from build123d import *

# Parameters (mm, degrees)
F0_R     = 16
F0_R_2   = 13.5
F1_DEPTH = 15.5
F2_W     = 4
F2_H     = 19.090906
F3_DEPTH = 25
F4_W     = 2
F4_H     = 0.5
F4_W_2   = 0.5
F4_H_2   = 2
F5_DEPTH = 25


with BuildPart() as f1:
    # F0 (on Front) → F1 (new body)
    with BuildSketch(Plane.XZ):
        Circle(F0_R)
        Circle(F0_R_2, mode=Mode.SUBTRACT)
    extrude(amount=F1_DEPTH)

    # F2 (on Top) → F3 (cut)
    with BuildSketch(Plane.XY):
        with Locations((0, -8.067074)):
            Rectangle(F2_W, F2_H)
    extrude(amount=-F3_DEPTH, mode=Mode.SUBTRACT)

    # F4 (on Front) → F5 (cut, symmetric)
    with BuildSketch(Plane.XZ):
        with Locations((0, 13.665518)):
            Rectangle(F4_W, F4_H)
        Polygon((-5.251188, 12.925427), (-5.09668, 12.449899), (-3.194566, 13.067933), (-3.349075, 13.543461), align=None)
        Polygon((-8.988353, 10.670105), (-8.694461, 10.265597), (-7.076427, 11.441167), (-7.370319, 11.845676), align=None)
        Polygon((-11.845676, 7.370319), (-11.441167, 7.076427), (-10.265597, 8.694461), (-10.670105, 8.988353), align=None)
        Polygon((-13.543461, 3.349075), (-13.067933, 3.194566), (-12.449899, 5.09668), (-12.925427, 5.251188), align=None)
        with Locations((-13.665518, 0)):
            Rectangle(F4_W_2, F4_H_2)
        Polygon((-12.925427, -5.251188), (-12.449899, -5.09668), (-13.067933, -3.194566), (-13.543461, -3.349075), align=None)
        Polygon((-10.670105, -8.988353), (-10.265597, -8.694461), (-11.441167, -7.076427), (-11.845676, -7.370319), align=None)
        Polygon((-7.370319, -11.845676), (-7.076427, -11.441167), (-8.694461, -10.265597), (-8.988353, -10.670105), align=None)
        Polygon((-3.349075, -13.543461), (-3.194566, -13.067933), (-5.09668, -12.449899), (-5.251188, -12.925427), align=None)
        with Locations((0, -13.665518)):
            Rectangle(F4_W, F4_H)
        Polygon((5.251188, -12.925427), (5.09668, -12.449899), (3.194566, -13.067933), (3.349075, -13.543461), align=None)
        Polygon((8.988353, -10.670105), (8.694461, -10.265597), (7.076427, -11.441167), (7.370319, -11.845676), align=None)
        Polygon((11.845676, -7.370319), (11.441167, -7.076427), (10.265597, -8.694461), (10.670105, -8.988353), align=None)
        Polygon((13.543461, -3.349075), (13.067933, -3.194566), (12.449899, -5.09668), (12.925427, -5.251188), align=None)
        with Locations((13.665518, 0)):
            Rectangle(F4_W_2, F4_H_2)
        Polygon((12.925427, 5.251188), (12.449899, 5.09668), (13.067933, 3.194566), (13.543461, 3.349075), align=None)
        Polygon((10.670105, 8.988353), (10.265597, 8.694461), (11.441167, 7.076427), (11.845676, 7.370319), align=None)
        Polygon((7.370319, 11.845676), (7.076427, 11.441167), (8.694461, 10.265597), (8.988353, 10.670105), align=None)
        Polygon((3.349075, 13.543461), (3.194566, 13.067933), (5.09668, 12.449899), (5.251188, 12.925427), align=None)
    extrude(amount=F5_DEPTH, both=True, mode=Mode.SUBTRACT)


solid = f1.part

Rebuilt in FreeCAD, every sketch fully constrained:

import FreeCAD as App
import Part
import Sketcher

V = App.Vector
Q = App.Units.Quantity


def add_polygon(sketch, points):
    """Adds a closed chain of lines whose ends are joined by coincident constraints."""
    first, n = sketch.GeometryCount, len(points)
    for a, b in zip(points, points[1:] + points[:1]):
        sketch.addGeometry(Part.LineSegment(App.Vector(*a, 0), App.Vector(*b, 0)), False)
    for i in range(n):
        sketch.addConstraint(Sketcher.Constraint("Coincident", first + i, 2, first + (i + 1) % n, 1))

doc = App.newDocument("Part")
body = doc.addObject("PartDesign::Body", "Body")

sketch1 = body.newObject("Sketcher::SketchObject", "Sketch")
sketch1.AttachmentSupport = (doc.getObject("XZ_Plane"), [""])
sketch1.MapMode = "FlatFace"
sketch1.addGeometry(Part.Circle(V(0, 0, 0), V(0, 0, 1), 16), False)
sketch1.addGeometry(Part.Circle(V(0, 0, 0), V(0, 0, 1), 14), False)
sketch1.addConstraint(Sketcher.Constraint("Coincident", 0, 3, -1, 1))
sketch1.addConstraint(Sketcher.Constraint("Coincident", 1, 3, -1, 1))
sketch1.addConstraint(Sketcher.Constraint("Diameter", 0, 32.0))
sketch1.addConstraint(Sketcher.Constraint("Diameter", 1, 27.0))
pad1 = body.newObject("PartDesign::Pad", "Pad")
pad1.Profile = sketch1
pad1.Length = 15.5

sketch2 = body.newObject("Sketcher::SketchObject", "Sketch001")
sketch2.AttachmentSupport = (doc.getObject("XY_Plane"), [""])
sketch2.MapMode = "FlatFace"
add_polygon(sketch2, [(-2, 1.5), (-2, -17.6), (2, -17.6), (2, 1.5)])
sketch2.addConstraint(Sketcher.Constraint("Vertical", 0))
sketch2.addConstraint(Sketcher.Constraint("Horizontal", 1))
sketch2.addConstraint(Sketcher.Constraint("Vertical", 2))
sketch2.addConstraint(Sketcher.Constraint("Horizontal", 3))
sketch2.addConstraint(Sketcher.Constraint("DistanceX", 1, 1, 1, 2, 4.0))
sketch2.addConstraint(Sketcher.Constraint("DistanceX", 0, 2, -1, 1, 2.0))
sketch2.addConstraint(Sketcher.Constraint("DistanceY", 0, 2, 0, 1, 19.090906))
sketch2.addConstraint(Sketcher.Constraint("DistanceY", -1, 1, 2, 2, 1.478379))
pocket1 = body.newObject("PartDesign::Pocket", "Pocket")
pocket1.Profile = sketch2
pocket1.Length = 25

sketch3 = body.newObject("Sketcher::SketchObject", "Sketch002")
sketch3.AttachmentSupport = (doc.getObject("XZ_Plane"), [""])
sketch3.MapMode = "FlatFace"
add_polygon(sketch3, [(-1, 13.92), (-1, 13.42), (1, 13.42), (1, 13.92)])
add_polygon(sketch3, [(-5.25, 12.93), (-5.1, 12.45), (-3.19, 13.07), (-3.35, 13.54)])
add_polygon(sketch3, [(-8.99, 10.67), (-8.69, 10.27), (-7.08, 11.44), (-7.37, 11.85)])
add_polygon(sketch3, [(-11.85, 7.37), (-11.44, 7.08), (-10.27, 8.69), (-10.67, 8.99)])
add_polygon(sketch3, [(-13.54, 3.35), (-13.07, 3.19), (-12.45, 5.1), (-12.93, 5.25)])
add_polygon(sketch3, [(-13.92, 1), (-13.92, -1), (-13.42, -1), (-13.42, 1)])
add_polygon(sketch3, [(-12.93, -5.25), (-12.45, -5.1), (-13.07, -3.19), (-13.54, -3.35)])
add_polygon(sketch3, [(-10.67, -8.99), (-10.27, -8.69), (-11.44, -7.08), (-11.85, -7.37)])
add_polygon(sketch3, [(-7.37, -11.85), (-7.08, -11.44), (-8.69, -10.27), (-8.99, -10.67)])
add_polygon(sketch3, [(-3.35, -13.54), (-3.19, -13.07), (-5.1, -12.45), (-5.25, -12.93)])
add_polygon(sketch3, [(-1, -13.42), (-1, -13.92), (1, -13.92), (1, -13.42)])
add_polygon(sketch3, [(5.25, -12.93), (5.1, -12.45), (3.19, -13.07), (3.35, -13.54)])
add_polygon(sketch3, [(8.99, -10.67), (8.69, -10.27), (7.08, -11.44), (7.37, -11.85)])
add_polygon(sketch3, [(11.85, -7.37), (11.44, -7.08), (10.27, -8.69), (10.67, -8.99)])
add_polygon(sketch3, [(13.54, -3.35), (13.07, -3.19), (12.45, -5.1), (12.93, -5.25)])
add_polygon(sketch3, [(13.42, 1), (13.42, -1), (13.92, -1), (13.92, 1)])
add_polygon(sketch3, [(12.93, 5.25), (12.45, 5.1), (13.07, 3.19), (13.54, 3.35)])
add_polygon(sketch3, [(10.67, 8.99), (10.27, 8.69), (11.44, 7.08), (11.85, 7.37)])
add_polygon(sketch3, [(7.37, 11.85), (7.08, 11.44), (8.69, 10.27), (8.99, 10.67)])
add_polygon(sketch3, [(3.35, 13.54), (3.19, 13.07), (5.1, 12.45), (5.25, 12.93)])
sketch3.addConstraint(Sketcher.Constraint("Vertical", 0))
sketch3.addConstraint(Sketcher.Constraint("Horizontal", 1))
sketch3.addConstraint(Sketcher.Constraint("Vertical", 2))
sketch3.addConstraint(Sketcher.Constraint("Horizontal", 3))
sketch3.addConstraint(Sketcher.Constraint("Vertical", 20))
sketch3.addConstraint(Sketcher.Constraint("Horizontal", 21))
sketch3.addConstraint(Sketcher.Constraint("Vertical", 22))
sketch3.addConstraint(Sketcher.Constraint("Horizontal", 23))
sketch3.addConstraint(Sketcher.Constraint("Vertical", 40))
sketch3.addConstraint(Sketcher.Constraint("Horizontal", 41))
sketch3.addConstraint(Sketcher.Constraint("Vertical", 42))
sketch3.addConstraint(Sketcher.Constraint("Horizontal", 43))
sketch3.addConstraint(Sketcher.Constraint("Vertical", 60))
sketch3.addConstraint(Sketcher.Constraint("Horizontal", 61))
sketch3.addConstraint(Sketcher.Constraint("Vertical", 62))
sketch3.addConstraint(Sketcher.Constraint("Horizontal", 63))
sketch3.addConstraint(Sketcher.Constraint("Symmetric", 2, 2, 40, 2, -1, 1))
sketch3.addConstraint(Sketcher.Constraint("Symmetric", 0, 2, 42, 2, -1, 1))
sketch3.addConstraint(Sketcher.Constraint("Symmetric", 4, 2, 44, 2, -1, 1))
sketch3.addConstraint(Sketcher.Constraint("Symmetric", 5, 2, 45, 2, -1, 1))
sketch3.addConstraint(Sketcher.Constraint("Symmetric", 6, 2, 46, 2, -1, 1))
sketch3.addConstraint(Sketcher.Constraint("Symmetric", 7, 2, 47, 2, -1, 1))
sketch3.addConstraint(Sketcher.Constraint("Symmetric", 8, 2, 48, 2, -1, 1))
sketch3.addConstraint(Sketcher.Constraint("Symmetric", 9, 2, 49, 2, -1, 1))
sketch3.addConstraint(Sketcher.Constraint("Symmetric", 10, 2, 50, 2, -1, 1))
sketch3.addConstraint(Sketcher.Constraint("Symmetric", 11, 2, 51, 2, -1, 1))
sketch3.addConstraint(Sketcher.Constraint("Symmetric", 12, 2, 52, 2, -1, 1))
sketch3.addConstraint(Sketcher.Constraint("Symmetric", 13, 2, 53, 2, -1, 1))
sketch3.addConstraint(Sketcher.Constraint("Symmetric", 14, 2, 54, 2, -1, 1))
sketch3.addConstraint(Sketcher.Constraint("Symmetric", 15, 2, 55, 2, -1, 1))
sketch3.addConstraint(Sketcher.Constraint("Symmetric", 16, 2, 56, 2, -1, 1))
sketch3.addConstraint(Sketcher.Constraint("Symmetric", 17, 2, 57, 2, -1, 1))
sketch3.addConstraint(Sketcher.Constraint("Symmetric", 18, 2, 58, 2, -1, 1))
sketch3.addConstraint(Sketcher.Constraint("Symmetric", 19, 2, 59, 2, -1, 1))
sketch3.addConstraint(Sketcher.Constraint("Symmetric", 22, 2, 60, 2, -1, 1))
sketch3.addConstraint(Sketcher.Constraint("Symmetric", 20, 2, 62, 2, -1, 1))
sketch3.addConstraint(Sketcher.Constraint("Symmetric", 24, 2, 64, 2, -1, 1))
sketch3.addConstraint(Sketcher.Constraint("Symmetric", 25, 2, 65, 2, -1, 1))
sketch3.addConstraint(Sketcher.Constraint("Symmetric", 26, 2, 66, 2, -1, 1))
sketch3.addConstraint(Sketcher.Constraint("Symmetric", 27, 2, 67, 2, -1, 1))
sketch3.addConstraint(Sketcher.Constraint("Symmetric", 28, 2, 68, 2, -1, 1))
sketch3.addConstraint(Sketcher.Constraint("Symmetric", 29, 2, 69, 2, -1, 1))
sketch3.addConstraint(Sketcher.Constraint("Symmetric", 30, 2, 70, 2, -1, 1))
sketch3.addConstraint(Sketcher.Constraint("Symmetric", 31, 2, 71, 2, -1, 1))
sketch3.addConstraint(Sketcher.Constraint("Symmetric", 32, 2, 72, 2, -1, 1))
sketch3.addConstraint(Sketcher.Constraint("Symmetric", 33, 2, 73, 2, -1, 1))
sketch3.addConstraint(Sketcher.Constraint("Symmetric", 34, 2, 74, 2, -1, 1))
sketch3.addConstraint(Sketcher.Constraint("Symmetric", 35, 2, 75, 2, -1, 1))
sketch3.addConstraint(Sketcher.Constraint("Symmetric", 36, 2, 76, 2, -1, 1))
sketch3.addConstraint(Sketcher.Constraint("Symmetric", 37, 2, 77, 2, -1, 1))
sketch3.addConstraint(Sketcher.Constraint("Symmetric", 38, 2, 78, 2, -1, 1))
sketch3.addConstraint(Sketcher.Constraint("Symmetric", 39, 2, 79, 2, -1, 1))
sketch3.addConstraint(Sketcher.Constraint("Symmetric", 37, 2, 44, 2, -2))
sketch3.addConstraint(Sketcher.Constraint("Symmetric", 36, 2, 45, 2, -2))
sketch3.addConstraint(Sketcher.Constraint("Symmetric", 39, 2, 46, 2, -2))
sketch3.addConstraint(Sketcher.Constraint("Symmetric", 38, 2, 47, 2, -2))
sketch3.addConstraint(Sketcher.Constraint("Symmetric", 33, 2, 48, 2, -2))
sketch3.addConstraint(Sketcher.Constraint("Symmetric", 32, 2, 49, 2, -2))
sketch3.addConstraint(Sketcher.Constraint("Symmetric", 35, 2, 50, 2, -2))
sketch3.addConstraint(Sketcher.Constraint("Symmetric", 34, 2, 51, 2, -2))
sketch3.addConstraint(Sketcher.Constraint("Symmetric", 29, 2, 52, 2, -2))
sketch3.addConstraint(Sketcher.Constraint("Symmetric", 28, 2, 53, 2, -2))
sketch3.addConstraint(Sketcher.Constraint("Symmetric", 31, 2, 54, 2, -2))
sketch3.addConstraint(Sketcher.Constraint("Symmetric", 30, 2, 55, 2, -2))
sketch3.addConstraint(Sketcher.Constraint("Symmetric", 25, 2, 56, 2, -2))
sketch3.addConstraint(Sketcher.Constraint("Symmetric", 24, 2, 57, 2, -2))
sketch3.addConstraint(Sketcher.Constraint("Symmetric", 27, 2, 58, 2, -2))
sketch3.addConstraint(Sketcher.Constraint("Symmetric", 26, 2, 59, 2, -2))
sketch3.addConstraint(Sketcher.Constraint("Perpendicular", 4, 5))
sketch3.addConstraint(Sketcher.Constraint("Perpendicular", 5, 6))
sketch3.addConstraint(Sketcher.Constraint("Perpendicular", 6, 7))
sketch3.addConstraint(Sketcher.Constraint("Perpendicular", 8, 9))
sketch3.addConstraint(Sketcher.Constraint("Perpendicular", 9, 10))
sketch3.addConstraint(Sketcher.Constraint("Perpendicular", 10, 11))
sketch3.addConstraint(Sketcher.Constraint("Perpendicular", 12, 13))
sketch3.addConstraint(Sketcher.Constraint("Perpendicular", 13, 14))
sketch3.addConstraint(Sketcher.Constraint("Perpendicular", 14, 15))
sketch3.addConstraint(Sketcher.Constraint("Perpendicular", 16, 17))
sketch3.addConstraint(Sketcher.Constraint("Perpendicular", 17, 18))
sketch3.addConstraint(Sketcher.Constraint("Perpendicular", 18, 19))
sketch3.addConstraint(Sketcher.Constraint("Parallel", 7, 24))
sketch3.addConstraint(Sketcher.Constraint("Parallel", 11, 28))
sketch3.addConstraint(Sketcher.Constraint("Horizontal", 21, 2, 60, 2))
sketch3.addConstraint(Sketcher.Constraint("Vertical", 3, 2, 40, 2))
sketch3.addConstraint(Sketcher.Constraint("Equal", 63, 0))
sketch3.addConstraint(Sketcher.Constraint("Equal", 43, 20))
sketch3.addConstraint(Sketcher.Constraint("Equal", 6, 8))
sketch3.addConstraint(Sketcher.Constraint("Equal", 7, 9))
sketch3.addConstraint(Sketcher.Constraint("Equal", 10, 12))
sketch3.addConstraint(Sketcher.Constraint("Equal", 11, 13))
sketch3.addConstraint(Sketcher.Constraint("Equal", 14, 16))
sketch3.addConstraint(Sketcher.Constraint("Equal", 15, 17))
sketch3.addConstraint(Sketcher.Constraint("DistanceX", 1, 1, 1, 2, 2.0))
sketch3.addConstraint(Sketcher.Constraint("Angle", 5, Q("17.999992 deg")))
sketch3.addConstraint(Sketcher.Constraint("Angle", 9, Q("35.999988 deg")))
sketch3.addConstraint(Sketcher.Constraint("Distance", 5, 2.000001))
sketch3.addConstraint(Sketcher.Constraint("DistanceX", 21, 1, 21, 2, 0.5))
sketch3.addConstraint(Sketcher.Constraint("Distance", 4, 0.5))
sketch3.addConstraint(Sketcher.Constraint("DistanceY", -1, 1, 4, 2, 12.449899))
sketch3.addConstraint(Sketcher.Constraint("DistanceX", 17, 2, -1, 1, 12.449899))
sketch3.addConstraint(Sketcher.Constraint("DistanceX", 4, 2, -1, 1, 5.09668))
sketch3.addConstraint(Sketcher.Constraint("DistanceX", 8, 2, -1, 1, 8.694461))
sketch3.addConstraint(Sketcher.Constraint("DistanceY", -1, 1, 13, 2, 8.694461))
sketch3.addConstraint(Sketcher.Constraint("DistanceY", -1, 1, 17, 2, 5.09668))
sketch3.addConstraint(Sketcher.Constraint("DistanceY", -1, 1, 0, 2, 13.415518))
sketch3.addConstraint(Sketcher.Constraint("DistanceY", -1, 1, 8, 2, 10.265597))
sketch3.addConstraint(Sketcher.Constraint("DistanceX", 12, 2, -1, 1, 11.441167))
sketch3.addConstraint(Sketcher.Constraint("DistanceX", 20, 2, -1, 1, 13.915518))
pocket2 = body.newObject("PartDesign::Pocket", "Pocket001")
pocket2.Profile = sketch3
pocket2.Length = 50
pocket2.Midplane = True

doc.recompute()
